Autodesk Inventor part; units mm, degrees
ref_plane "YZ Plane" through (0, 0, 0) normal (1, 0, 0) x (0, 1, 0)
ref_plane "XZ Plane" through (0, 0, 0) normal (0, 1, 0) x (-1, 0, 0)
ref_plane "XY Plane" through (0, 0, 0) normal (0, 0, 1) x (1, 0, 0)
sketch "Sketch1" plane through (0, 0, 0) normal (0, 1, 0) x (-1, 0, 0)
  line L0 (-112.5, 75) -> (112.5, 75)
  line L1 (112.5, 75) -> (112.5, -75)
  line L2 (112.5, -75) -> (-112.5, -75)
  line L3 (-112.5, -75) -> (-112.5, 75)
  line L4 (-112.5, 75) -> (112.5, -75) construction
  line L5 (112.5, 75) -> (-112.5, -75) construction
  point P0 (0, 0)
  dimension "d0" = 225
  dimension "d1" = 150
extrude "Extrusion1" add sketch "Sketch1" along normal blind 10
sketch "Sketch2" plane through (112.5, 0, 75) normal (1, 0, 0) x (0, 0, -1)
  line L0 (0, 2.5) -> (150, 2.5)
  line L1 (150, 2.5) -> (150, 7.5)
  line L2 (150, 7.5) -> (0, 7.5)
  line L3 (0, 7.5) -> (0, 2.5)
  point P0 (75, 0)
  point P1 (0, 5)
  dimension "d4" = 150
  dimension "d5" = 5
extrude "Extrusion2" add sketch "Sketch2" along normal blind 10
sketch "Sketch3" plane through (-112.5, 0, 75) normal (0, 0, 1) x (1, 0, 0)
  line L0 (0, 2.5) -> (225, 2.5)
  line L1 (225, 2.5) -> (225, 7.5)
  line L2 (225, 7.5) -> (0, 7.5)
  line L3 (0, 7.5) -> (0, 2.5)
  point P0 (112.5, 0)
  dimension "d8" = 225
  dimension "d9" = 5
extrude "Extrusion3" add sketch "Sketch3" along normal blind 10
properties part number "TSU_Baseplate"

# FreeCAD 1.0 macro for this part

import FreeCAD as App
import Part
import Sketcher
from FreeCAD import Vector


def add_polygon(sketch, points):
    """Adds a closed chain of lines whose ends are joined by coincident constraints."""
    first, n = sketch.GeometryCount, len(points)
    for a, b in zip(points, points[1:] + points[:1]):
        sketch.addGeometry(Part.LineSegment(App.Vector(*a, 0), App.Vector(*b, 0)), False)
    for i in range(n):
        sketch.addConstraint(Sketcher.Constraint("Coincident", first + i, 2, first + (i + 1) % n, 1))

doc = App.newDocument("Part")
body = doc.addObject("PartDesign::Body", "Body")

# Sketch on XZ plane
sketch1 = doc.addObject("Sketcher::SketchObject", "Sketch")
body.addObject(sketch1)
sketch1.AttachmentSupport = (doc.XZ_Plane, [""])
sketch1.MapMode = "FlatFace"
add_polygon(sketch1, [(-112, 75), (112, 75), (112, -75), (-112, -75)])  # lines 0-3
sketch1.addConstraint([
    Sketcher.Constraint("Horizontal", 0),
    Sketcher.Constraint("Vertical", 1),
    Sketcher.Constraint("Horizontal", 2),
    Sketcher.Constraint("Vertical", 3),
    Sketcher.Constraint("Symmetric", 0, 2, 2, 2, -1, 1),
    Sketcher.Constraint("DistanceX", 0, 1, 0, 2, 225.0),
    Sketcher.Constraint("DistanceY", 1, 2, 1, 1, 150.0),
])
pad1 = doc.addObject("PartDesign::Pad", "Pad")
body.addObject(pad1)
pad1.Profile = sketch1
pad1.Length = 10
pad1.Reversed = True

# Sketch on YZ plane
sketch2 = doc.addObject("Sketcher::SketchObject", "Sketch001")
body.addObject(sketch2)
sketch2.AttachmentSupport = (doc.YZ_Plane, [""])
sketch2.MapMode = "FlatFace"
sketch2.AttachmentOffset = App.Placement(Vector(0, 0, 112.5), App.Rotation())
add_polygon(sketch2, [(8, 75), (2, 75), (2, -75), (8, -75)])  # lines 0-3
sketch2.addConstraint([
    Sketcher.Constraint("Horizontal", 0),
    Sketcher.Constraint("Vertical", 1),
    Sketcher.Constraint("Horizontal", 2),
    Sketcher.Constraint("Vertical", 3),
    Sketcher.Constraint("DistanceX", 0, 2, 0, 1, 5.0),
    Sketcher.Constraint("DistanceY", 1, 2, 1, 1, 150.0),
    Sketcher.Constraint("DistanceY", -1, 1, 0, 2, 75.0),
    Sketcher.Constraint("DistanceX", -1, 1, 0, 2, 2.5),
])
pad2 = doc.addObject("PartDesign::Pad", "Pad001")
body.addObject(pad2)
pad2.Profile = sketch2
pad2.Length = 10

# Sketch on XY plane
sketch3 = doc.addObject("Sketcher::SketchObject", "Sketch002")
body.addObject(sketch3)
sketch3.AttachmentSupport = (doc.XY_Plane, [""])
sketch3.MapMode = "FlatFace"
sketch3.AttachmentOffset = App.Placement(Vector(0, 0, 75), App.Rotation())
add_polygon(sketch3, [(-112, 8), (-112, 2), (112, 2), (112, 8)])  # lines 0-3
sketch3.addConstraint([
    Sketcher.Constraint("Vertical", 0),
    Sketcher.Constraint("Horizontal", 1),
    Sketcher.Constraint("Vertical", 2),
    Sketcher.Constraint("Horizontal", 3),
    Sketcher.Constraint("DistanceX", 1, 1, 1, 2, 225.0),
    Sketcher.Constraint("DistanceY", 0, 2, 0, 1, 5.0),
    Sketcher.Constraint("DistanceX", 0, 2, -1, 1, 112.5),
    Sketcher.Constraint("DistanceY", -1, 1, 0, 2, 2.5),
])
pad3 = doc.addObject("PartDesign::Pad", "Pad002")
body.addObject(pad3)
pad3.Profile = sketch3
pad3.Length = 10

doc.recompute()
